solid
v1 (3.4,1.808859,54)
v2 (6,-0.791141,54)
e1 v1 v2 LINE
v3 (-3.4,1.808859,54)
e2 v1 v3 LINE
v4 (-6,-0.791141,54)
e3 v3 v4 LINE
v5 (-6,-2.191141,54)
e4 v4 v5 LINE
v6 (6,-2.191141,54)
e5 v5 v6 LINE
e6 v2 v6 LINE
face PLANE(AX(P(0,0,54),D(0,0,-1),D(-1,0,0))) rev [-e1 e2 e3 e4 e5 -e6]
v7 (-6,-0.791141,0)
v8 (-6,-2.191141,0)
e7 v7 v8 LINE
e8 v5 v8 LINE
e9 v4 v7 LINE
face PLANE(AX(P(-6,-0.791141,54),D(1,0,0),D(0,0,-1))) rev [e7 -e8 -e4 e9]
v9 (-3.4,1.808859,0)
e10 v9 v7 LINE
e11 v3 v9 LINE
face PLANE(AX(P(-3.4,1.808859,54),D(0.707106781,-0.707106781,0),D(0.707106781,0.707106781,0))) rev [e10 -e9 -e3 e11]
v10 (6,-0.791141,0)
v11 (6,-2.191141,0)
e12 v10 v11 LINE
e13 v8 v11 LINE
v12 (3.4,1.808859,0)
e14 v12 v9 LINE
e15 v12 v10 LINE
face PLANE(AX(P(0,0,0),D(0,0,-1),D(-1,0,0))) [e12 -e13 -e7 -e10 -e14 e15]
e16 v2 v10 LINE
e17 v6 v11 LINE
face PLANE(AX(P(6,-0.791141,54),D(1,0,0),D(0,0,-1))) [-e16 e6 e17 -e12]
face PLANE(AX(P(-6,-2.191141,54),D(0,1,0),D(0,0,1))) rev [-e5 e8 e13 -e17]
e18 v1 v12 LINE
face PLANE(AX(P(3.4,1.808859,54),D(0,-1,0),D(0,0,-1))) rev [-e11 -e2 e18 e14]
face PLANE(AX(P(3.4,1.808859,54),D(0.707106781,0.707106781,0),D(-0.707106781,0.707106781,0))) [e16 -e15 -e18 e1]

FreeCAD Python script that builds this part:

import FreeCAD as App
import Part
import Sketcher

V = App.Vector

doc = App.newDocument("Part")
body = doc.addObject("PartDesign::Body", "Body")

# Sketch on XY plane
sketch1 = doc.addObject("Sketcher::SketchObject", "Sketch")
body.addObject(sketch1)
sketch1.AttachmentSupport = (doc.XY_Plane, [""])
sketch1.MapMode = "FlatFace"
sketch1.addGeometry([
    Part.LineSegment(V(3.4, 1.8, 0), V(-3.4, 1.8, 0)),  # 0
    Part.LineSegment(V(-3.4, 1.8, 0), V(-6, -0.8, 0)),  # 1
    Part.LineSegment(V(-6, -0.8, 0), V(-6, -2.2, 0)),  # 2
    Part.LineSegment(V(-6, -2.2, 0), V(6, -2.2, 0)),  # 3
    Part.LineSegment(V(6, -2.2, 0), V(6, -0.8, 0)),  # 4
    Part.LineSegment(V(6, -0.8, 0), V(3.4, 1.8, 0)),  # 5
], False)
sketch1.addConstraint([
    Sketcher.Constraint("Coincident", 0, 2, 1, 1),
    Sketcher.Constraint("Coincident", 1, 2, 2, 1),
    Sketcher.Constraint("Coincident", 2, 2, 3, 1),
    Sketcher.Constraint("Coincident", 3, 2, 4, 1),
    Sketcher.Constraint("Coincident", 4, 2, 5, 1),
    Sketcher.Constraint("Coincident", 5, 2, 0, 1),
    Sketcher.Constraint("Horizontal", 0),
    Sketcher.Constraint("Vertical", 2),
    Sketcher.Constraint("Horizontal", 3),
    Sketcher.Constraint("Vertical", 4),
    Sketcher.Constraint("Symmetric", 1, 2, 4, 2, -2),
    Sketcher.Constraint("Perpendicular", 1, 5),
    Sketcher.Constraint("Equal", 1, 5),
    Sketcher.Constraint("DistanceX", 3, 1, 3, 2, 12.0),
    Sketcher.Constraint("DistanceX", 0, 2, 0, 1, 6.8),
    Sketcher.Constraint("DistanceY", 2, 2, 2, 1, 1.4),
    Sketcher.Constraint("DistanceY", -1, 1, 0, 2, 1.808859),
])
pad1 = doc.addObject("PartDesign::Pad", "Pad")
body.addObject(pad1)
pad1.Profile = sketch1
pad1.Length = 54

doc.recompute()
